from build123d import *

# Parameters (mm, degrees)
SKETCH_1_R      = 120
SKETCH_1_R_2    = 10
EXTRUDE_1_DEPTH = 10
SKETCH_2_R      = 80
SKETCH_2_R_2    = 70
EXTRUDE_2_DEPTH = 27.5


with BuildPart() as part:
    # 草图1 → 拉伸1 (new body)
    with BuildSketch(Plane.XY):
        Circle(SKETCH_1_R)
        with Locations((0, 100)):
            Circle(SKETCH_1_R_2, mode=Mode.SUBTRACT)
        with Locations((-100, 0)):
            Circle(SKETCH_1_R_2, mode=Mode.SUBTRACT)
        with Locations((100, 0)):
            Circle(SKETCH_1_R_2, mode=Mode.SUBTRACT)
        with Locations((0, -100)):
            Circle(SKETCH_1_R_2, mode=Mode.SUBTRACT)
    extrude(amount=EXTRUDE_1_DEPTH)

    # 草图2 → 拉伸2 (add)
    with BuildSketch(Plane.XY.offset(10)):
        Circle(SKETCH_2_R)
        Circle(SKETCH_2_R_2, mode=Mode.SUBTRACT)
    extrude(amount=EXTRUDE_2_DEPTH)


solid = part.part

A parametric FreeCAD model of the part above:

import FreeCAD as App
import Part
import Sketcher
from FreeCAD import Vector

doc = App.newDocument("Part")
params = doc.addObject("Spreadsheet::Sheet", "Params")
for row, (alias, value) in enumerate([
    ("sketch1_diameter", "240 mm"),
    ("sketch1_diameter2", "20 mm"),
    ("pad1_length", "10 mm"),
    ("sketch2_diameter", "160 mm"),
    ("sketch2_diameter2", "140 mm"),
    ("pad2_length", "27.5 mm"),
], start=1):
    params.set(f"A{row}", alias)
    params.set(f"B{row}", "=" + value)
    params.setAlias(f"B{row}", alias)

body = doc.addObject("PartDesign::Body", "Body")

# Sketch on XY plane
sketch1 = doc.addObject("Sketcher::SketchObject", "Sketch")
body.addObject(sketch1)
sketch1.AttachmentSupport = (doc.XY_Plane, [""])
sketch1.MapMode = "FlatFace"
sketch1.addGeometry([
    Part.Circle(Vector(0, 0, 0), Vector(0, 0, 1), 120),  # 0
    Part.Circle(Vector(0, -100, 0), Vector(0, 0, 1), 10),  # 1
    Part.Circle(Vector(-100, 0, 0), Vector(0, 0, 1), 10),  # 2
    Part.Circle(Vector(100, 0, 0), Vector(0, 0, 1), 10),  # 3
    Part.Circle(Vector(0, 100, 0), Vector(0, 0, 1), 10),  # 4
], False)
sketch1.addConstraint([
    Sketcher.Constraint("Coincident", 0, 3, -1, 1),
    Sketcher.Constraint("Equal", 1, 2),
    Sketcher.Constraint("Equal", 2, 3),
    Sketcher.Constraint("Equal", 3, 4),
    Sketcher.Constraint("Symmetric", 2, 3, 3, 3, -1, 1),
    Sketcher.Constraint("Symmetric", 1, 3, 4, 3, -1, 1),
    Sketcher.Constraint("PointOnObject", 1, 3, -2),
    Sketcher.Constraint("PointOnObject", 2, 3, -1),
    Sketcher.Constraint("Diameter", 0, 240.0),
    Sketcher.Constraint("Diameter", 1, 20.0),
    Sketcher.Constraint("DistanceY", 1, 3, -1, 1, 100.0),
    Sketcher.Constraint("DistanceX", 2, 3, -1, 1, 100.0),
])
sketch1.setExpression("Constraints[8]", "Params.sketch1_diameter")
sketch1.setExpression("Constraints[9]", "Params.sketch1_diameter2")
pad1 = doc.addObject("PartDesign::Pad", "Pad")
body.addObject(pad1)
pad1.Profile = sketch1
pad1.setExpression("Length", "Params.pad1_length")

# Sketch on XY plane
sketch2 = doc.addObject("Sketcher::SketchObject", "Sketch001")
body.addObject(sketch2)
sketch2.AttachmentSupport = (doc.XY_Plane, [""])
sketch2.MapMode = "FlatFace"
sketch2.AttachmentOffset = App.Placement(Vector(0, 0, 10), App.Rotation())
sketch2.addGeometry([
    Part.Circle(Vector(0, 0, 0), Vector(0, 0, 1), 80),
    Part.Circle(Vector(0, 0, 0), Vector(0, 0, 1), 70),
], False)
sketch2.addConstraint([
    Sketcher.Constraint("Coincident", 0, 3, -1, 1),
    Sketcher.Constraint("Coincident", 1, 3, -1, 1),
    Sketcher.Constraint("Diameter", 0, 160.0),
    Sketcher.Constraint("Diameter", 1, 140.0),
])
sketch2.setExpression("Constraints[2]", "Params.sketch2_diameter")
sketch2.setExpression("Constraints[3]", "Params.sketch2_diameter2")
pad2 = doc.addObject("PartDesign::Pad", "Pad001")
body.addObject(pad2)
pad2.Profile = sketch2
pad2.setExpression("Length", "Params.pad2_length")

doc.recompute()
